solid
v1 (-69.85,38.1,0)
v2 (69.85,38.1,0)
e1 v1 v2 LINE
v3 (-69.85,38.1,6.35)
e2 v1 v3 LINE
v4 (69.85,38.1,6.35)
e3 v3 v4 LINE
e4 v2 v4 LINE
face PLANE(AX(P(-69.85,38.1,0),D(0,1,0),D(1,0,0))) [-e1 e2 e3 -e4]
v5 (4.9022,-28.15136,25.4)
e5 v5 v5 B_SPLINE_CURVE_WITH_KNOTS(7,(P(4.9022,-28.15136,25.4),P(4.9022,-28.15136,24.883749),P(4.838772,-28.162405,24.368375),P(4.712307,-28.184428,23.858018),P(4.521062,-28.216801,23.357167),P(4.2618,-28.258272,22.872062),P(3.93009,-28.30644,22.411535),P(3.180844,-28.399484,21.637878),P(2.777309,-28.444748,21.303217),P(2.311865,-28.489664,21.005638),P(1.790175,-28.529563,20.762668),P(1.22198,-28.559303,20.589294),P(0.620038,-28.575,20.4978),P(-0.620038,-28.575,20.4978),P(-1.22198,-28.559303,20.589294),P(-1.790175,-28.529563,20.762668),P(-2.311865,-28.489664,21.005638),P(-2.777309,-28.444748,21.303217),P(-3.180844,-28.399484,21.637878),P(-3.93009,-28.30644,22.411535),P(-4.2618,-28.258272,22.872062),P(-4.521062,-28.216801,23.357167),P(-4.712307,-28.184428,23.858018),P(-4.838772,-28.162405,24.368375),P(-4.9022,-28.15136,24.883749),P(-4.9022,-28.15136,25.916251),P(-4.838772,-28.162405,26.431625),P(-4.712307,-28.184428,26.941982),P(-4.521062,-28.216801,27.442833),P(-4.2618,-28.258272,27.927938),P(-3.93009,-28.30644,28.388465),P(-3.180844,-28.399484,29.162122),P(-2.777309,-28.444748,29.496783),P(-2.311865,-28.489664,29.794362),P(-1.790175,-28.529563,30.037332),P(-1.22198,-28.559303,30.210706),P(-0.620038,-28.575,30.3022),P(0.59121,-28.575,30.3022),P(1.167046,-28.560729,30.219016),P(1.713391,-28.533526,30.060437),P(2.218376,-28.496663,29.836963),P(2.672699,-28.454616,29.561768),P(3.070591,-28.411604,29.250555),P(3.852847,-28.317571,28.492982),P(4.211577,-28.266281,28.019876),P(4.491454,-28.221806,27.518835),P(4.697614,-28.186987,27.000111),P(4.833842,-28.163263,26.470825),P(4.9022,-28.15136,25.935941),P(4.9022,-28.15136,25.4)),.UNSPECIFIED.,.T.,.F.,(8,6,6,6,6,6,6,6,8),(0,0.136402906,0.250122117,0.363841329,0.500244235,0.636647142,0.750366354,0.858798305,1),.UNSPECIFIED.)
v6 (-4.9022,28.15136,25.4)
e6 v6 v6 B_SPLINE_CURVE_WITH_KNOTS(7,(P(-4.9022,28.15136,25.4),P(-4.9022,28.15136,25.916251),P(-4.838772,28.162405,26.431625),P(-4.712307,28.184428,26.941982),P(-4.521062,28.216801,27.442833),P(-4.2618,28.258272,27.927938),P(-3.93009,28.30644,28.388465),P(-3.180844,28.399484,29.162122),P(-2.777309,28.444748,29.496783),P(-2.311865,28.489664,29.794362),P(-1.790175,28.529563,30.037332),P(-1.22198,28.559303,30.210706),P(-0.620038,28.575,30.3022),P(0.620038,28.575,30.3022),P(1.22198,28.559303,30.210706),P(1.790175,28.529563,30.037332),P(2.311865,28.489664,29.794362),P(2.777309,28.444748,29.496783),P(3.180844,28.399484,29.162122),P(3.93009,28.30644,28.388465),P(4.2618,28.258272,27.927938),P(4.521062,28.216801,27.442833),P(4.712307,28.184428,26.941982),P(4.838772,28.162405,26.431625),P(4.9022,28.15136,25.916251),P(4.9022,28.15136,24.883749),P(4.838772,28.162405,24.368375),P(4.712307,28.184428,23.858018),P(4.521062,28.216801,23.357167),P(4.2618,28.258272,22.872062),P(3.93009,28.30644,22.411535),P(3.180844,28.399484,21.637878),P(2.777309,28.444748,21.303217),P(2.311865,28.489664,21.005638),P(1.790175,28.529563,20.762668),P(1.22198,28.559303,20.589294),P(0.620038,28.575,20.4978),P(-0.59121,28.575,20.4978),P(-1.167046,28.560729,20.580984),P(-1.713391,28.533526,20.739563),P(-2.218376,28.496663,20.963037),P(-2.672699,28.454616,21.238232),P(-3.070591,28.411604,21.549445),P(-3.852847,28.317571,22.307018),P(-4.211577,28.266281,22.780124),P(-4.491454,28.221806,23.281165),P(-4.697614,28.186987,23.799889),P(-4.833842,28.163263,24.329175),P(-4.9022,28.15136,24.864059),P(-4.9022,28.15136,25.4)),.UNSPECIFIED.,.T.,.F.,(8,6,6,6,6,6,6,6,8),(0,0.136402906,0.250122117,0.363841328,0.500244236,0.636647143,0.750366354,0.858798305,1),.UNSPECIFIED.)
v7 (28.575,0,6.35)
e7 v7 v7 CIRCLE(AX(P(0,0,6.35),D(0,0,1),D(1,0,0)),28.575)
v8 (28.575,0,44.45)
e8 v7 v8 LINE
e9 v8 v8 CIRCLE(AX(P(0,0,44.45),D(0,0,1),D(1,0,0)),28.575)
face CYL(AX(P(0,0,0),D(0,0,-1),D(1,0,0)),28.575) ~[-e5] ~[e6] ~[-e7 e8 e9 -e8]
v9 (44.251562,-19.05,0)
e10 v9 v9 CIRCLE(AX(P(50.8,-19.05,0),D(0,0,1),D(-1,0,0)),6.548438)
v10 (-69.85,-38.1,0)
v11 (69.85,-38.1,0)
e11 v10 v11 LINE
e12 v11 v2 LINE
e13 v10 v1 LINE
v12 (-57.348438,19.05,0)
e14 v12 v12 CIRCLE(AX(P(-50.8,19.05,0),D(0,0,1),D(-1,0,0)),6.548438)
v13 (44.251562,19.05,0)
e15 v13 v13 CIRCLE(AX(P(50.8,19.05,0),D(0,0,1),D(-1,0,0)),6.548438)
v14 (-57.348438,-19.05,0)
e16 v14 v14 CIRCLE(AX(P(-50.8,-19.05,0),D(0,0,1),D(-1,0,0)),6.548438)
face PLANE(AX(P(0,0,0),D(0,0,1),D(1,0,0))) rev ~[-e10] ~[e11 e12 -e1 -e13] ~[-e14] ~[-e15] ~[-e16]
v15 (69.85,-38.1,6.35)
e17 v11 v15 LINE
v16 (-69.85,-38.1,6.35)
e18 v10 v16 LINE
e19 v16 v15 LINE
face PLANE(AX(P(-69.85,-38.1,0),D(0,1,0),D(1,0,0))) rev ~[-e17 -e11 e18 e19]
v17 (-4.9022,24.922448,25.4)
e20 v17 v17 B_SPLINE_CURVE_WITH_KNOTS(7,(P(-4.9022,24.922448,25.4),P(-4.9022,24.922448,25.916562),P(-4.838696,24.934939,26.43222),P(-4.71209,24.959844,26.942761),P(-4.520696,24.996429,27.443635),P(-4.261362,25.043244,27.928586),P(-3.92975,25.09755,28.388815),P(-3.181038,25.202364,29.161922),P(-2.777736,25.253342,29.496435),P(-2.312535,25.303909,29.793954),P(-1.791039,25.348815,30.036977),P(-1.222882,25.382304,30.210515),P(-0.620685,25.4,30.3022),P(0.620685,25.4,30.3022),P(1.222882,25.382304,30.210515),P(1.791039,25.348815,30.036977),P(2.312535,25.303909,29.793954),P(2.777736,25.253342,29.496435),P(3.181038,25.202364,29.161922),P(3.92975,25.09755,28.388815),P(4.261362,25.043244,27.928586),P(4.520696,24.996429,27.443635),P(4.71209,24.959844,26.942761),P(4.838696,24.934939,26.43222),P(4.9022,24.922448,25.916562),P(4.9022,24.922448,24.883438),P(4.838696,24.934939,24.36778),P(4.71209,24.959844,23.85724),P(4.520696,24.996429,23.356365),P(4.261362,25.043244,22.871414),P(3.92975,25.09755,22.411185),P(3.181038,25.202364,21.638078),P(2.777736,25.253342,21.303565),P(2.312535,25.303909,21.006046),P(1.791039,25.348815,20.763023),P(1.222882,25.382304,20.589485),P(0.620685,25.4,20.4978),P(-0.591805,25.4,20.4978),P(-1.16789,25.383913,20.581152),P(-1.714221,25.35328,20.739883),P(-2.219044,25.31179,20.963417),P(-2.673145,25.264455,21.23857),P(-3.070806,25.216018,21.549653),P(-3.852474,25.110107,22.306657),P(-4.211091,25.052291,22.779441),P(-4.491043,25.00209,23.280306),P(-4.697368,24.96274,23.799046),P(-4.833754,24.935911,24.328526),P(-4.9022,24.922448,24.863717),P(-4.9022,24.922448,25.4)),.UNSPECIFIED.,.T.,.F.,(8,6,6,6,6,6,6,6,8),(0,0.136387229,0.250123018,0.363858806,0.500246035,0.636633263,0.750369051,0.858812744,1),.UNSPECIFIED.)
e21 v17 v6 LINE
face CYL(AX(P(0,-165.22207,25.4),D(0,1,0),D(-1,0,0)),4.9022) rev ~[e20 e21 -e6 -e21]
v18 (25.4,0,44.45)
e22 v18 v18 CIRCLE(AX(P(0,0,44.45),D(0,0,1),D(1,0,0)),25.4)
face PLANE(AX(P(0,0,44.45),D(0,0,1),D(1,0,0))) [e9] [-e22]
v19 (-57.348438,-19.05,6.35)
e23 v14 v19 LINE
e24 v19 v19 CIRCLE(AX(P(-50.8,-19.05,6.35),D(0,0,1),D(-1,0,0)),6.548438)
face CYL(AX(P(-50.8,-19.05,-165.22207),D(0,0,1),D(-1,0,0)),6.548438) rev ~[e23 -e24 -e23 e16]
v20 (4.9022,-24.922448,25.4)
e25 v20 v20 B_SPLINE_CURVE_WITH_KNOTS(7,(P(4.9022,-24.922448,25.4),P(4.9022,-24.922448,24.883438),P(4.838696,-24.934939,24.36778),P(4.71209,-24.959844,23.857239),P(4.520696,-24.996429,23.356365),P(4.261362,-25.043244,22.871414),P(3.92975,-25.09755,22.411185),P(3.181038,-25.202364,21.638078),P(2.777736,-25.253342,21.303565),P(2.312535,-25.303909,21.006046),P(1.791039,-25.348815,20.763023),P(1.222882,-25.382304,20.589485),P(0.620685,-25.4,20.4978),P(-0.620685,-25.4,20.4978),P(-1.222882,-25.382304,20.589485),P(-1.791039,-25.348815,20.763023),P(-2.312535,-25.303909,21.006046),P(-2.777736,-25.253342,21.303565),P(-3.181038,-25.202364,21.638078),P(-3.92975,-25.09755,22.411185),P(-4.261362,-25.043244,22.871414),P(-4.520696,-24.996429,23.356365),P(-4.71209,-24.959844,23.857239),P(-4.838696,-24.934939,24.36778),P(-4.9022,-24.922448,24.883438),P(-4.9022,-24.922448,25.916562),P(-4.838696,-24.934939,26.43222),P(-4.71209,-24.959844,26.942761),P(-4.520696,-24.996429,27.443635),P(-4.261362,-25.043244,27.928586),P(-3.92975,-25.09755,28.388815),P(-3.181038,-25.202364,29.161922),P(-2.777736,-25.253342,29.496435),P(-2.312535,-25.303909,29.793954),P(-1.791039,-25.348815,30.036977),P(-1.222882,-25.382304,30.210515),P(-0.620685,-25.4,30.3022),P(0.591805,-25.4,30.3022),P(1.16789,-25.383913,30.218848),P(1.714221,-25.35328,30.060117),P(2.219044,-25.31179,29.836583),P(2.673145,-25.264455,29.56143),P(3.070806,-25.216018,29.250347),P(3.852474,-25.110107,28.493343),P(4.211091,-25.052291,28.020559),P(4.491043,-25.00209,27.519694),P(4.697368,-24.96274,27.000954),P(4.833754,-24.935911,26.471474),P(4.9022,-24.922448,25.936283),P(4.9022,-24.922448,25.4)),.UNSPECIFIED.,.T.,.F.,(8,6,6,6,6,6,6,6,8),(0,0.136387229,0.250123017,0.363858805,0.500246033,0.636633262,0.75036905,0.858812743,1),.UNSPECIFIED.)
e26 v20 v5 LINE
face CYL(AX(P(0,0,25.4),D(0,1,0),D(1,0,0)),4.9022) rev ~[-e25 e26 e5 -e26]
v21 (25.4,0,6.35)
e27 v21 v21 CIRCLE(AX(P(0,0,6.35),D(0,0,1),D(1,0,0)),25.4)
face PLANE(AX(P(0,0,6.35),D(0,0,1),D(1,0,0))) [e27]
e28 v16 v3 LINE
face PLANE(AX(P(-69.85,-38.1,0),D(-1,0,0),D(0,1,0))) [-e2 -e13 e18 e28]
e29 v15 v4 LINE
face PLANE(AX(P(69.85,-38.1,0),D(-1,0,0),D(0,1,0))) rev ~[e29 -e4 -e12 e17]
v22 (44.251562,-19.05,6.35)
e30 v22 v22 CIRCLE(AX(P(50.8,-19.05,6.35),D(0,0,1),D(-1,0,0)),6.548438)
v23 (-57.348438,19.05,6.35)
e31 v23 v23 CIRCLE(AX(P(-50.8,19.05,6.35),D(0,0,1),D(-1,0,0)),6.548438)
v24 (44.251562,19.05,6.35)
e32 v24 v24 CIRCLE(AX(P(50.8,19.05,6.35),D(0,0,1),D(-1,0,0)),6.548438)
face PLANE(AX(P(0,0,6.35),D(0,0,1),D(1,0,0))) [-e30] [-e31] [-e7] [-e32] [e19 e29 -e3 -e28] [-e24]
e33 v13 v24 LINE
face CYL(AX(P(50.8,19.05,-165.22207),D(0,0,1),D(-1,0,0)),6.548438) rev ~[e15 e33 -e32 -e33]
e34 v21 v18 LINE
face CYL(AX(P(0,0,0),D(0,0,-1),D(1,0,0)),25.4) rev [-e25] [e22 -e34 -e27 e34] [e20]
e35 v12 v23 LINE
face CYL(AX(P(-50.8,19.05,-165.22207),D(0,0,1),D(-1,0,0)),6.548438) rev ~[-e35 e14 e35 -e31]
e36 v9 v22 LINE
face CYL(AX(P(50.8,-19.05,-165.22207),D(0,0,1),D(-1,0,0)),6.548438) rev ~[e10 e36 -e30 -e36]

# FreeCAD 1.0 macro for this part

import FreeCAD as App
import Part
import Sketcher
Q = App.Units.Quantity

doc = App.newDocument("Part")
body = doc.addObject("PartDesign::Body", "Body")

# Sketch on XY plane
sketch1 = body.newObject("Sketcher::SketchObject", "Sketch")
sketch1.AttachmentSupport = (doc.getObject("XY_Plane"), [""])
sketch1.MapMode = "FlatFace"
sketch1.addGeometry(Part.Circle(App.Vector(0, 0, 0), App.Vector(0, 0, 1), 25.4), False)
sketch1.addConstraint([
    Sketcher.Constraint("Coincident", 0, 3, -1, 1),
    Sketcher.Constraint("Diameter", 0, Q("2 in")),
])
pad1 = body.newObject("PartDesign::Pad", "Pad")
pad1.Profile = sketch1
pad1.Length = Q("0.25 in")
body2 = doc.addObject("PartDesign::Body", "Body001")

# Sketch on XY plane
sketch2 = body2.newObject("Sketcher::SketchObject", "Sketch001")
sketch2.AttachmentSupport = (doc.getObject("XY_Plane001"), [""])
sketch2.MapMode = "FlatFace"
sketch2.addGeometry([
    Part.LineSegment(App.Vector(-69.85, 38.1, 0), App.Vector(-69.85, -38.1, 0)),  # 0
    Part.LineSegment(App.Vector(-69.85, -38.1, 0), App.Vector(69.85, -38.1, 0)),  # 1
    Part.LineSegment(App.Vector(69.85, -38.1, 0), App.Vector(69.85, 38.1, 0)),  # 2
    Part.LineSegment(App.Vector(69.85, 38.1, 0), App.Vector(-69.85, 38.1, 0)),  # 3
    Part.Circle(App.Vector(0, 0, 0), App.Vector(0, 0, 1), 28.575),  # 4
], False)
sketch2.addConstraint([
    Sketcher.Constraint("Coincident", 0, 2, 1, 1),
    Sketcher.Constraint("Coincident", 1, 2, 2, 1),
    Sketcher.Constraint("Coincident", 2, 2, 3, 1),
    Sketcher.Constraint("Coincident", 3, 2, 0, 1),
    Sketcher.Constraint("Vertical", 0),
    Sketcher.Constraint("Horizontal", 1),
    Sketcher.Constraint("Vertical", 2),
    Sketcher.Constraint("Horizontal", 3),
    Sketcher.Constraint("Coincident", 4, 3, -1, 1),
    Sketcher.Constraint("Symmetric", 0, 2, 2, 2, -1, 1),
    Sketcher.Constraint("Diameter", 4, Q("2.25 in")),
    Sketcher.Constraint("DistanceY", 0, 2, 0, 1, Q("3 in")),
    Sketcher.Constraint("DistanceX", 1, 1, 1, 2, Q("5.5 in")),
])
pad2 = body2.newObject("PartDesign::Pad", "Pad001")
pad2.Profile = sketch2
pad2.Length = Q("0.25 in")
body.AllowCompound = True
doc.recompute()

boolean = body.newObject("PartDesign::Boolean", "Boolean")
boolean.Type = "Fuse"
boolean.addObjects([body2])

# Sketch on XY plane
sketch3 = body.newObject("Sketcher::SketchObject", "Sketch002")
sketch3.AttachmentSupport = (doc.getObject("XY_Plane"), [""])
sketch3.MapMode = "FlatFace"
sketch3.addGeometry([
    Part.Circle(App.Vector(0, 0, 0), App.Vector(0, 0, 1), 28.575),
    Part.Circle(App.Vector(0, 0, 0), App.Vector(0, 0, 1), 25.4),
], False)
sketch3.addConstraint([
    Sketcher.Constraint("Coincident", 0, 3, -1, 1),
    Sketcher.Constraint("Coincident", 1, 3, -1, 1),
    Sketcher.Constraint("Diameter", 1, Q("2 in")),
    Sketcher.Constraint("Diameter", 0, Q("2.25 in")),
])
pad3 = body.newObject("PartDesign::Pad", "Pad002")
pad3.Profile = sketch3
pad3.Length = Q("1.75 in")

# Sketch on XY plane
sketch4 = body.newObject("Sketcher::SketchObject", "Sketch003")
sketch4.AttachmentSupport = (doc.getObject("XY_Plane"), [""])
sketch4.MapMode = "FlatFace"
sketch4.addGeometry([
    Part.Circle(App.Vector(-50.8, 19.05, 0), App.Vector(0, 0, 1), 6.548438),
    Part.Circle(App.Vector(50.8, 19.05, 0), App.Vector(0, 0, 1), 6.548438),
    Part.Circle(App.Vector(50.8, -19.05, 0), App.Vector(0, 0, 1), 6.548438),
    Part.Circle(App.Vector(-50.8, -19.05, 0), App.Vector(0, 0, 1), 6.548438),
], False)
sketch4.addConstraint([
    Sketcher.Constraint("Equal", 0, 1),
    Sketcher.Constraint("Equal", 1, 2),
    Sketcher.Constraint("Equal", 2, 3),
    Sketcher.Constraint("Symmetric", 0, 3, 2, 3, -1, 1),
    Sketcher.Constraint("Symmetric", 1, 3, 3, 3, -1, 1),
    Sketcher.Constraint("Symmetric", 0, 3, 1, 3, -2),
    Sketcher.Constraint("Diameter", 0, Q("0.515625 in")),
    Sketcher.Constraint("DistanceX", 0, 3, -1, 1, Q("2 in")),
    Sketcher.Constraint("DistanceY", 2, 3, 1, 3, Q("1.5 in")),
])
doc.recompute()
hole = body.newObject("PartDesign::Hole", "Hole")
hole.Profile = sketch4
hole.ThreadType = "None"
hole.Diameter = Q("0.515625 in")
hole.DepthType = "ThroughAll"
hole.Reversed = True

# Sketch on XZ plane
sketch5 = body.newObject("Sketcher::SketchObject", "Sketch004")
sketch5.AttachmentSupport = (doc.getObject("XZ_Plane"), [""])
sketch5.MapMode = "FlatFace"
sketch5.addGeometry(Part.Circle(App.Vector(0, 25.4, 0), App.Vector(0, 0, 1), 4.9022), False)
sketch5.addConstraint([
    Sketcher.Constraint("PointOnObject", 0, 3, -2),
    Sketcher.Constraint("Diameter", 0, Q("0.386 in")),
    Sketcher.Constraint("DistanceY", -1, 1, 0, 3, Q("1 in")),
])
pocket1 = body.newObject("PartDesign::Pocket", "Pocket")
pocket1.Profile = sketch5
pocket1.Type = "ThroughAll"
pocket1.Reversed = True

# Sketch on XZ plane
sketch6 = body.newObject("Sketcher::SketchObject", "Sketch005")
sketch6.AttachmentSupport = (doc.getObject("XZ_Plane"), [""])
sketch6.MapMode = "FlatFace"
sketch6.addGeometry(Part.Circle(App.Vector(0, 25.4, 0), App.Vector(0, 0, 1), 4.9022), False)
sketch6.addConstraint([
    Sketcher.Constraint("PointOnObject", 0, 3, -2),
    Sketcher.Constraint("Diameter", 0, Q("0.386 in")),
    Sketcher.Constraint("DistanceY", -1, 1, 0, 3, Q("1 in")),
])
doc.recompute()
hole2 = body.newObject("PartDesign::Hole", "Hole001")
hole2.Profile = sketch6
hole2.ThreadType = "None"
hole2.Diameter = Q("0.386 in")
hole2.DepthType = "ThroughAll"

doc.recompute()
